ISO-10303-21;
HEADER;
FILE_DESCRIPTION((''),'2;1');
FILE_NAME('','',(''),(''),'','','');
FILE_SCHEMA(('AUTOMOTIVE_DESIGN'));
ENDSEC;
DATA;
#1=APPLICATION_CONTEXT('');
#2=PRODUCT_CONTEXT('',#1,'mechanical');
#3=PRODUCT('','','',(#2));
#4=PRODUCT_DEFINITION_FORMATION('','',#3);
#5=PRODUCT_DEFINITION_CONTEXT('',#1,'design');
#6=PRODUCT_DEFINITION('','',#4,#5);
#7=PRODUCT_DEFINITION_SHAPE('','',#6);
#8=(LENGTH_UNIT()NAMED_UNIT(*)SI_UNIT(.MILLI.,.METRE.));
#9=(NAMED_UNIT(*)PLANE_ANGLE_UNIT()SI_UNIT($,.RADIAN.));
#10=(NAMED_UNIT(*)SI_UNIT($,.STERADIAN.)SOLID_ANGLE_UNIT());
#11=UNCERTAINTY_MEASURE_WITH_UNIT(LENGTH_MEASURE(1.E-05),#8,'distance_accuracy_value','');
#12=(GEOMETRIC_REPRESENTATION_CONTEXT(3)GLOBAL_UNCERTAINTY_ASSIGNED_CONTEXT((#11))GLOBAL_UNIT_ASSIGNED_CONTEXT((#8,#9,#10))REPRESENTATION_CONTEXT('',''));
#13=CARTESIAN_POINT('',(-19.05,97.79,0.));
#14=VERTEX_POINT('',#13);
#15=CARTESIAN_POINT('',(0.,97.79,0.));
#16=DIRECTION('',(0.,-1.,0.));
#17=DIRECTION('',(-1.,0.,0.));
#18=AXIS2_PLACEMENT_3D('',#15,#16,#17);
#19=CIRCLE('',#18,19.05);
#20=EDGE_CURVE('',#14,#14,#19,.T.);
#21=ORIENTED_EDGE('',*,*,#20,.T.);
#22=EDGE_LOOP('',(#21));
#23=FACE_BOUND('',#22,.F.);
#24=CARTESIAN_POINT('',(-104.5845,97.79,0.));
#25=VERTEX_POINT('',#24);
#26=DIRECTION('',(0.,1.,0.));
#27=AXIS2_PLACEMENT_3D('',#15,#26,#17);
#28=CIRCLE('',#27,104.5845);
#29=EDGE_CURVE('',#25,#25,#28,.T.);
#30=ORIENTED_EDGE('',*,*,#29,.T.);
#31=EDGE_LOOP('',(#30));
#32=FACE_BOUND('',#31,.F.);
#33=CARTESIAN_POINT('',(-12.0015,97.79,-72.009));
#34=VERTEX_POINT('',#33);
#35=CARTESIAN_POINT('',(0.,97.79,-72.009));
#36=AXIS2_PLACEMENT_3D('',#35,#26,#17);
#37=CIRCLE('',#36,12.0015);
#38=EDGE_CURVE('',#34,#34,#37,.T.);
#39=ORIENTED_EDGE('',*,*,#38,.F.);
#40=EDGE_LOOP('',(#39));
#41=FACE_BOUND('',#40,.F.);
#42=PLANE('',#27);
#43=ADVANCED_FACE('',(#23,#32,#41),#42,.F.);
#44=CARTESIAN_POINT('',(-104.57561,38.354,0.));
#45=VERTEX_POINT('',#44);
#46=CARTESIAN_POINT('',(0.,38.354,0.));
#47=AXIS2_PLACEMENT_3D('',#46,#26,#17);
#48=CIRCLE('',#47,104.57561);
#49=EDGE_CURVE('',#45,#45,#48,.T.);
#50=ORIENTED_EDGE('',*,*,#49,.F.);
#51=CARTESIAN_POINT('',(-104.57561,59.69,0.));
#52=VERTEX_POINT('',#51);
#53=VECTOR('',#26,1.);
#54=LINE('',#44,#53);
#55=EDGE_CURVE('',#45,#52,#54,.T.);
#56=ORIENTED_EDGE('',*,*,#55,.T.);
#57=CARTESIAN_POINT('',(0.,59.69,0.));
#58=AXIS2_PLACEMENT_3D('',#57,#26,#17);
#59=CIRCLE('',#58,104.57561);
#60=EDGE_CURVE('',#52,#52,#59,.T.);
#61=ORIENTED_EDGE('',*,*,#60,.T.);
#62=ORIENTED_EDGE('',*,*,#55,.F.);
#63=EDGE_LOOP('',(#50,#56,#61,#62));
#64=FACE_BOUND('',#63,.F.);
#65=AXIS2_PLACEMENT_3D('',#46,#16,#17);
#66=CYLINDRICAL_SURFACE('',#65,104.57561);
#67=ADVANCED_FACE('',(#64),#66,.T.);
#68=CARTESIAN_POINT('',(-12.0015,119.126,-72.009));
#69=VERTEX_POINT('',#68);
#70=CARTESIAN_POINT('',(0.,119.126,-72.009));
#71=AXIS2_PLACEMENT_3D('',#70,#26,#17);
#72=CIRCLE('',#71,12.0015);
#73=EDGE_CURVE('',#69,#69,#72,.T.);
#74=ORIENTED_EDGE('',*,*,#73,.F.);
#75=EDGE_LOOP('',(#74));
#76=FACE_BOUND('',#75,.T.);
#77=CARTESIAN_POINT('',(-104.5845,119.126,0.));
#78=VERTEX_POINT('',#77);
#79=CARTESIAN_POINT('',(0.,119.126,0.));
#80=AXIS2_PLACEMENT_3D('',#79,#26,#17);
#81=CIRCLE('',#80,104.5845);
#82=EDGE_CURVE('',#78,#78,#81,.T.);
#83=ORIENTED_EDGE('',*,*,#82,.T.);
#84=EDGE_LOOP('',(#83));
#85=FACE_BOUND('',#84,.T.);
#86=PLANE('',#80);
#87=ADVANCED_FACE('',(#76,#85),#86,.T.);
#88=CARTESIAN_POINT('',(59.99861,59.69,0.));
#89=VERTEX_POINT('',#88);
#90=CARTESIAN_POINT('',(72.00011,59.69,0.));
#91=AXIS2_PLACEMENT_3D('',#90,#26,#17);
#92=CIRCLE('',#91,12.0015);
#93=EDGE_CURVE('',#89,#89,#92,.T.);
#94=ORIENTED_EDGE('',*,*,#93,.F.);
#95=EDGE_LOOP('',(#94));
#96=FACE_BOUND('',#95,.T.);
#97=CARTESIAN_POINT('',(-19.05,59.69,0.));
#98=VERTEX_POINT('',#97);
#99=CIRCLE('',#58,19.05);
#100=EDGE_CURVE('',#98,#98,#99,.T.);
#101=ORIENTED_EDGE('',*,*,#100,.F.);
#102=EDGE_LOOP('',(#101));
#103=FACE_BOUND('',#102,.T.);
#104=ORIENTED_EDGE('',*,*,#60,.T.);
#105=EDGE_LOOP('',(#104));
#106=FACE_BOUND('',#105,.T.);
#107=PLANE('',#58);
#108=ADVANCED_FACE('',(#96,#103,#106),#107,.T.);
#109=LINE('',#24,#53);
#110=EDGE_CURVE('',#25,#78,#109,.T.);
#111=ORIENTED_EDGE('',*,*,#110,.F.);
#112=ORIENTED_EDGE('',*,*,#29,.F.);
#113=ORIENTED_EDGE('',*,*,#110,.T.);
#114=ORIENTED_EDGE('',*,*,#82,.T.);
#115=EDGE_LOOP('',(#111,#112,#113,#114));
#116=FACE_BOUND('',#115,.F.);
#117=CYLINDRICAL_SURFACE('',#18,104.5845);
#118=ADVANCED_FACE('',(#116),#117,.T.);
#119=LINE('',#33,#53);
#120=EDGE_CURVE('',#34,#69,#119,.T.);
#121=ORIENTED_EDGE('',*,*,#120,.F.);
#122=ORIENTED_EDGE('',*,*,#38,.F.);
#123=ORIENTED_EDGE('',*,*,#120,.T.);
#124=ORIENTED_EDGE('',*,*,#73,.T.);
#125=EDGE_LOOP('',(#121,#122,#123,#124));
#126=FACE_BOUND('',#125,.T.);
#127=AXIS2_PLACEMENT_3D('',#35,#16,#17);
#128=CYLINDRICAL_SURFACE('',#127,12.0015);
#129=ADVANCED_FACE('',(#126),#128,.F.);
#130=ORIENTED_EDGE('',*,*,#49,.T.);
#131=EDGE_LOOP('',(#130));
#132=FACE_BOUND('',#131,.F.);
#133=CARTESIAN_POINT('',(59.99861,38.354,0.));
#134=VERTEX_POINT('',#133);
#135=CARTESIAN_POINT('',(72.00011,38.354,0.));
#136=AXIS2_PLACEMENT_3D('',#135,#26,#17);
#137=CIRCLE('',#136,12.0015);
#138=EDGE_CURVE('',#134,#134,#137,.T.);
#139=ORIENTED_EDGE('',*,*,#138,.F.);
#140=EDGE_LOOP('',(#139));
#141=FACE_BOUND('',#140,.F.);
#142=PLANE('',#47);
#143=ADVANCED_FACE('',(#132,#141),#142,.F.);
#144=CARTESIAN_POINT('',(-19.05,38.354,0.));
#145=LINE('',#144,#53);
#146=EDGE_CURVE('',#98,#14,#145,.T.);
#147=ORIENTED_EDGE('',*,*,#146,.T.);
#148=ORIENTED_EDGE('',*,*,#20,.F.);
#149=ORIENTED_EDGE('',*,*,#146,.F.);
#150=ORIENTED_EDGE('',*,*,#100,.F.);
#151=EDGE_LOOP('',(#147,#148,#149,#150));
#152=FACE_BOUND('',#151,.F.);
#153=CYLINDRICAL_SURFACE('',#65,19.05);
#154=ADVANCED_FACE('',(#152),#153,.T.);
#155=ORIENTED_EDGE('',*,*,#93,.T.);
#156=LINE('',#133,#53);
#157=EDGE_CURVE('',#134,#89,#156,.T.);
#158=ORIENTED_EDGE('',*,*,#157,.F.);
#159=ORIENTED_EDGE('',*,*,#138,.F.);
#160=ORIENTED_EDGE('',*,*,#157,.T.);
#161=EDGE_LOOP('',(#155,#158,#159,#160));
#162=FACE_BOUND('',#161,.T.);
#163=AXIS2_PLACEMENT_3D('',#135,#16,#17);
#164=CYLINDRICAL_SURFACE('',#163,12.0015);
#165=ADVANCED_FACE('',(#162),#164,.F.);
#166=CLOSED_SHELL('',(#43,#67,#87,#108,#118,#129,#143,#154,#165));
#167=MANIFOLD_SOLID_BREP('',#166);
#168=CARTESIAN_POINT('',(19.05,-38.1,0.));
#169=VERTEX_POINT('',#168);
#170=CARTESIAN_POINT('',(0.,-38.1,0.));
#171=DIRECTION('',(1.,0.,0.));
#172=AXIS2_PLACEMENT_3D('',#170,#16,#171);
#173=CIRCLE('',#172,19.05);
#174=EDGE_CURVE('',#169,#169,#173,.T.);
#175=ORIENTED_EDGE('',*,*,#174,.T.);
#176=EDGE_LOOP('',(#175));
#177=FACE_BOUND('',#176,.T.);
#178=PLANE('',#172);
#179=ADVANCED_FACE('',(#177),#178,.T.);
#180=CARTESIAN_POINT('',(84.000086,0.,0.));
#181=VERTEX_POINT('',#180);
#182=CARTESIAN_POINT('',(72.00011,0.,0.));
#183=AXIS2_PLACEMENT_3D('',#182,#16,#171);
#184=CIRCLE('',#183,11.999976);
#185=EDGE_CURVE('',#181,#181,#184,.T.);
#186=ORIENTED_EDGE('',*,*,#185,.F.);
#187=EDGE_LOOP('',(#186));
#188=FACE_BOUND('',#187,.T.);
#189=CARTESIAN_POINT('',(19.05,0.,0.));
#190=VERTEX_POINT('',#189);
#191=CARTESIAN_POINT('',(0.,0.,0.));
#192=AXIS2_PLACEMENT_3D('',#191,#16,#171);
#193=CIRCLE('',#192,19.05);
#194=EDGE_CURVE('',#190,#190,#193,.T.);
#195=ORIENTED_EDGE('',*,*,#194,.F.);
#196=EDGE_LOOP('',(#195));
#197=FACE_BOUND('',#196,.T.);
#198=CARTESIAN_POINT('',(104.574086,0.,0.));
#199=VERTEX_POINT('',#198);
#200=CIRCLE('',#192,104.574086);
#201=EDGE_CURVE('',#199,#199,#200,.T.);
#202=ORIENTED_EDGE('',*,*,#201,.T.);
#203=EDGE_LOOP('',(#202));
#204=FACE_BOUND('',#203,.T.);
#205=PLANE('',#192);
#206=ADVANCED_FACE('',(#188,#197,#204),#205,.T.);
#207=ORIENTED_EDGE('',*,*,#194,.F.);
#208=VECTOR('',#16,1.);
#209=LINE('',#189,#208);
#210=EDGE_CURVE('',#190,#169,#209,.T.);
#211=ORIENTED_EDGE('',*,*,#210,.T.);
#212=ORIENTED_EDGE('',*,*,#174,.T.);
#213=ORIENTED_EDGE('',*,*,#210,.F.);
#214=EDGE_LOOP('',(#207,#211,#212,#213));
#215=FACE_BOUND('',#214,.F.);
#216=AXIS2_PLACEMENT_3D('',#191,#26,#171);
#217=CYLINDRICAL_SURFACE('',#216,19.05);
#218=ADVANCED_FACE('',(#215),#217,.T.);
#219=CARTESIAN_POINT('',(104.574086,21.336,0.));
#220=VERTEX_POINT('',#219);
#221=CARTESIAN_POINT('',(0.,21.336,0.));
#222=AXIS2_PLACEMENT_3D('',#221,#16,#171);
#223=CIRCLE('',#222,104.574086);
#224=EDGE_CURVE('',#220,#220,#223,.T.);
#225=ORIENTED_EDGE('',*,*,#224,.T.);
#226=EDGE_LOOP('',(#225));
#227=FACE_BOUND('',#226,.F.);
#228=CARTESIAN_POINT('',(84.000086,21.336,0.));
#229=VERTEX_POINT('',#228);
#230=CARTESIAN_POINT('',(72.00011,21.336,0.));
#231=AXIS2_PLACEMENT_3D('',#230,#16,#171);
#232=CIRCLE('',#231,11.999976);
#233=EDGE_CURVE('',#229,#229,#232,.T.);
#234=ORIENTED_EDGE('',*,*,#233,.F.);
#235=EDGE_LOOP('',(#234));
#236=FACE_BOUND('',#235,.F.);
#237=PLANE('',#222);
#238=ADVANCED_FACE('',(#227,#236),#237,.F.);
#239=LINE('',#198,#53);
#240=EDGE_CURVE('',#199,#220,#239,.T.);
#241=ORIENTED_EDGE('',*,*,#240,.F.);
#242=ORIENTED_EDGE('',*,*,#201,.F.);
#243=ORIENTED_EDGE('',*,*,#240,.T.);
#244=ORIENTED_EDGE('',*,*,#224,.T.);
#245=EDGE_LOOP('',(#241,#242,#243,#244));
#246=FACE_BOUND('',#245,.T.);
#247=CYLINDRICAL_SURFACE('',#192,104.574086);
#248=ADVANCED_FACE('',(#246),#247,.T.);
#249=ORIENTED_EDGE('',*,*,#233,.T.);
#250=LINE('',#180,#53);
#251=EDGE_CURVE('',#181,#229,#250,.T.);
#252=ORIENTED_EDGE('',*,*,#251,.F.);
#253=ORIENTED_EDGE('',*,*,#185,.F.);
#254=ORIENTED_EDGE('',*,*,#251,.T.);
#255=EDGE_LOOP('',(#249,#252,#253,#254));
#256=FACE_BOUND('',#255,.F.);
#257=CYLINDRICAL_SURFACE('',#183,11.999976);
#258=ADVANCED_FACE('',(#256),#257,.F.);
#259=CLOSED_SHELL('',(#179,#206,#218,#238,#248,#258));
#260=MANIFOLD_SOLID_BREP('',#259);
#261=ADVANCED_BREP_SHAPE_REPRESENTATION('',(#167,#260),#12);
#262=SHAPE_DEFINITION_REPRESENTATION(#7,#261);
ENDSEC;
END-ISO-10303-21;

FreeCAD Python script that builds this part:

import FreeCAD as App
import Part
import Sketcher

V = App.Vector
Q = App.Units.Quantity

doc = App.newDocument("Part")
body = doc.addObject("PartDesign::Body", "Body")

# Sketch on XZ plane
sketch1 = body.newObject("Sketcher::SketchObject", "Sketch")
sketch1.AttachmentSupport = (doc.getObject("XZ_Plane"), [""])
sketch1.MapMode = "FlatFace"
sketch1.addGeometry([
    Part.Circle(V(0, 0, 0), V(0, 0, 1), 105),
    Part.Circle(V(72, 0, 0), V(0, 0, 1), 12),
], False)
sketch1.addConstraint([
    Sketcher.Constraint("Coincident", 0, 3, -1, 1),
    Sketcher.Constraint("PointOnObject", 1, 3, -1),
    Sketcher.Constraint("Diameter", 0, Q("209.148172 mm")),
    Sketcher.Constraint("Diameter", 1, Q("23.999952 mm")),
    Sketcher.Constraint("DistanceX", -1, 1, 1, 3, Q("72.00011 mm")),
])
pad1 = body.newObject("PartDesign::Pad", "Pad")
pad1.Profile = sketch1
pad1.Length = Q("0.84 in")
pad1.Reversed = True

# Sketch on XZ plane
sketch2 = body.newObject("Sketcher::SketchObject", "Sketch001")
sketch2.AttachmentSupport = (doc.getObject("XZ_Plane"), [""])
sketch2.MapMode = "FlatFace"
sketch2.addGeometry(Part.Circle(V(0, 0, 0), V(0, 0, 1), 19), False)
sketch2.addConstraint([
    Sketcher.Constraint("Coincident", 0, 3, -1, 1),
    Sketcher.Constraint("Diameter", 0, Q("1.5 in")),
])
pad2 = body.newObject("PartDesign::Pad", "Pad001")
pad2.Profile = sketch2
pad2.Length = Q("1.5 in")
body2 = doc.addObject("PartDesign::Body", "Body001")

# Sketch on XZ plane
sketch3 = body2.newObject("Sketcher::SketchObject", "Sketch002")
sketch3.AttachmentSupport = (doc.getObject("XZ_Plane001"), [""])
sketch3.MapMode = "FlatFace"
sketch3.AttachmentOffset = App.Placement(V(0, 0, -1.51 * 25.4), App.Rotation())
sketch3.addGeometry([
    Part.Circle(V(0, 0, 0), V(0, 0, 1), 105),
    Part.Circle(V(72, 0, 0), V(0, 0, 1), 12),
    Part.Circle(V(0, 0, 0), V(0, 0, 1), 19),
], False)
sketch3.addConstraint([
    Sketcher.Constraint("Coincident", 0, 3, -1, 1),
    Sketcher.Constraint("Coincident", 2, 3, -1, 1),
    Sketcher.Constraint("PointOnObject", 1, 3, -1),
    Sketcher.Constraint("Diameter", 2, Q("1.5 in")),
    Sketcher.Constraint("Diameter", 1, Q("0.945 in")),
    Sketcher.Constraint("Diameter", 0, Q("8.2343 in")),
    Sketcher.Constraint("DistanceX", -1, 1, 1, 3, Q("72.00011 mm")),
])
pad3 = body2.newObject("PartDesign::Pad", "Pad002")
pad3.Profile = sketch3
pad3.Length = Q("0.84 in")
pad3.Reversed = True

# Sketch on XZ plane
sketch4 = body2.newObject("Sketcher::SketchObject", "Sketch003")
sketch4.AttachmentSupport = (doc.getObject("XZ_Plane001"), [""])
sketch4.MapMode = "FlatFace"
sketch4.AttachmentOffset = App.Placement(V(0, 0, -1.51 * 25.4), App.Rotation())
sketch4.addGeometry(Part.Circle(V(0, 0, 0), V(0, 0, 1), 19), False)
sketch4.addConstraint([
    Sketcher.Constraint("Coincident", 0, 3, -1, 1),
    Sketcher.Constraint("Diameter", 0, Q("1.5 in")),
])
pad4 = body2.newObject("PartDesign::Pad", "Pad003")
pad4.Profile = sketch4
pad4.Length = Q("3.18 in")
pad4.Reversed = True

# Sketch on XZ plane
sketch5 = body2.newObject("Sketcher::SketchObject", "Sketch004")
sketch5.AttachmentSupport = (doc.getObject("XZ_Plane001"), [""])
sketch5.MapMode = "FlatFace"
sketch5.AttachmentOffset = App.Placement(V(0, 0, -3.85 * 25.4), App.Rotation())
sketch5.addGeometry([
    Part.Circle(V(0, 0, 0), V(0, 0, 1), 105),
    Part.Circle(V(0, -72, 0), V(0, 0, 1), 12),
], False)
sketch5.addConstraint([
    Sketcher.Constraint("Coincident", 0, 3, -1, 1),
    Sketcher.Constraint("PointOnObject", 1, 3, -2),
    Sketcher.Constraint("Diameter", 0, Q("8.235 in")),
    Sketcher.Constraint("Diameter", 1, Q("0.945 in")),
    Sketcher.Constraint("DistanceY", 1, 3, -1, 1, Q("2.835 in")),
])
pad5 = body2.newObject("PartDesign::Pad", "Pad004")
pad5.Profile = sketch5
pad5.Length = Q("0.84 in")
pad5.Reversed = True

doc.recompute()
